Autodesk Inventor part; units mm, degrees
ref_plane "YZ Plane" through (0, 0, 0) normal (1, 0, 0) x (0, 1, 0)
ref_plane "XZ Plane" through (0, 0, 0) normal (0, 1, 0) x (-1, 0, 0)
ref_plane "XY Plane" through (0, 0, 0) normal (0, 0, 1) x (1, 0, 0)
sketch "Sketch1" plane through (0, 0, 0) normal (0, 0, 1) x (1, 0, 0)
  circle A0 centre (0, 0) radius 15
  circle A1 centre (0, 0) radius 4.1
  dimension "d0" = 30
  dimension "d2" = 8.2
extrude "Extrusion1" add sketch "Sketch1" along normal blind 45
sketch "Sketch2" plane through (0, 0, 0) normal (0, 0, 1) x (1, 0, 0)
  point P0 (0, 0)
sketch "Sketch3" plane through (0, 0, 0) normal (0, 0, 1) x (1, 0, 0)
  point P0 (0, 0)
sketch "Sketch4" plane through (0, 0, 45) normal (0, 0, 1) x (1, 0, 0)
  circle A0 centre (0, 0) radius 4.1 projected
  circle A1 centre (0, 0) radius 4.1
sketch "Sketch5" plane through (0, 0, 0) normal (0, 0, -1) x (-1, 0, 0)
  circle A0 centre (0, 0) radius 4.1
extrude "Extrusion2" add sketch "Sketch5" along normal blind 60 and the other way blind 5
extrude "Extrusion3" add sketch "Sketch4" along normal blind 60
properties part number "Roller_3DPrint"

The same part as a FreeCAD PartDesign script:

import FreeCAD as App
import Part
import Sketcher

doc = App.newDocument("Part")
body = doc.addObject("PartDesign::Body", "Body")
body.AllowCompound = True

# Sketch on XY plane
sketch1 = body.newObject("Sketcher::SketchObject", "Sketch")
sketch1.AttachmentSupport = (doc.getObject("XY_Plane"), [""])
sketch1.MapMode = "FlatFace"
sketch1.addGeometry([
    Part.Circle(App.Vector(0, 0, 0), App.Vector(0, 0, 1), 15),
    Part.Circle(App.Vector(0, 0, 0), App.Vector(0, 0, 1), 4.1),
], False)
sketch1.addConstraint([
    Sketcher.Constraint("Coincident", 0, 3, -1, 1),
    Sketcher.Constraint("Coincident", 1, 3, -1, 1),
    Sketcher.Constraint("Diameter", 0, 30.0),
    Sketcher.Constraint("Diameter", 1, 8.2),
])
pad1 = body.newObject("PartDesign::Pad", "Pad")
pad1.Profile = sketch1
pad1.Length = 45

# Sketch on XY plane
sketch2 = body.newObject("Sketcher::SketchObject", "Sketch001")
sketch2.AttachmentSupport = (doc.getObject("XY_Plane"), [""])
sketch2.MapMode = "FlatFace"
sketch2.addGeometry(Part.Circle(App.Vector(0, 0, 0), App.Vector(0, 0, 1), 4.1), False)
sketch2.addConstraint([
    Sketcher.Constraint("Coincident", 0, 3, -1, 1),
    Sketcher.Constraint("Diameter", 0, 8.2),
])
pad2 = body.newObject("PartDesign::Pad", "Pad001")
pad2.Profile = sketch2
pad2.Type = "TwoLengths"
pad2.Length = 60
pad2.Length2 = 5
pad2.Reversed = True

# Sketch on XY plane
sketch3 = body.newObject("Sketcher::SketchObject", "Sketch002")
sketch3.AttachmentSupport = (doc.getObject("XY_Plane"), [""])
sketch3.MapMode = "FlatFace"
sketch3.AttachmentOffset = App.Placement(App.Vector(0, 0, 45), App.Rotation())
sketch3.addGeometry(Part.Circle(App.Vector(0, 0, 0), App.Vector(0, 0, 1), 4.1), False)
sketch3.addConstraint([
    Sketcher.Constraint("Coincident", 0, 3, -1, 1),
    Sketcher.Constraint("Diameter", 0, 8.2),
])
pad3 = body.newObject("PartDesign::Pad", "Pad002")
pad3.Profile = sketch3
pad3.Length = 60

doc.recompute()
